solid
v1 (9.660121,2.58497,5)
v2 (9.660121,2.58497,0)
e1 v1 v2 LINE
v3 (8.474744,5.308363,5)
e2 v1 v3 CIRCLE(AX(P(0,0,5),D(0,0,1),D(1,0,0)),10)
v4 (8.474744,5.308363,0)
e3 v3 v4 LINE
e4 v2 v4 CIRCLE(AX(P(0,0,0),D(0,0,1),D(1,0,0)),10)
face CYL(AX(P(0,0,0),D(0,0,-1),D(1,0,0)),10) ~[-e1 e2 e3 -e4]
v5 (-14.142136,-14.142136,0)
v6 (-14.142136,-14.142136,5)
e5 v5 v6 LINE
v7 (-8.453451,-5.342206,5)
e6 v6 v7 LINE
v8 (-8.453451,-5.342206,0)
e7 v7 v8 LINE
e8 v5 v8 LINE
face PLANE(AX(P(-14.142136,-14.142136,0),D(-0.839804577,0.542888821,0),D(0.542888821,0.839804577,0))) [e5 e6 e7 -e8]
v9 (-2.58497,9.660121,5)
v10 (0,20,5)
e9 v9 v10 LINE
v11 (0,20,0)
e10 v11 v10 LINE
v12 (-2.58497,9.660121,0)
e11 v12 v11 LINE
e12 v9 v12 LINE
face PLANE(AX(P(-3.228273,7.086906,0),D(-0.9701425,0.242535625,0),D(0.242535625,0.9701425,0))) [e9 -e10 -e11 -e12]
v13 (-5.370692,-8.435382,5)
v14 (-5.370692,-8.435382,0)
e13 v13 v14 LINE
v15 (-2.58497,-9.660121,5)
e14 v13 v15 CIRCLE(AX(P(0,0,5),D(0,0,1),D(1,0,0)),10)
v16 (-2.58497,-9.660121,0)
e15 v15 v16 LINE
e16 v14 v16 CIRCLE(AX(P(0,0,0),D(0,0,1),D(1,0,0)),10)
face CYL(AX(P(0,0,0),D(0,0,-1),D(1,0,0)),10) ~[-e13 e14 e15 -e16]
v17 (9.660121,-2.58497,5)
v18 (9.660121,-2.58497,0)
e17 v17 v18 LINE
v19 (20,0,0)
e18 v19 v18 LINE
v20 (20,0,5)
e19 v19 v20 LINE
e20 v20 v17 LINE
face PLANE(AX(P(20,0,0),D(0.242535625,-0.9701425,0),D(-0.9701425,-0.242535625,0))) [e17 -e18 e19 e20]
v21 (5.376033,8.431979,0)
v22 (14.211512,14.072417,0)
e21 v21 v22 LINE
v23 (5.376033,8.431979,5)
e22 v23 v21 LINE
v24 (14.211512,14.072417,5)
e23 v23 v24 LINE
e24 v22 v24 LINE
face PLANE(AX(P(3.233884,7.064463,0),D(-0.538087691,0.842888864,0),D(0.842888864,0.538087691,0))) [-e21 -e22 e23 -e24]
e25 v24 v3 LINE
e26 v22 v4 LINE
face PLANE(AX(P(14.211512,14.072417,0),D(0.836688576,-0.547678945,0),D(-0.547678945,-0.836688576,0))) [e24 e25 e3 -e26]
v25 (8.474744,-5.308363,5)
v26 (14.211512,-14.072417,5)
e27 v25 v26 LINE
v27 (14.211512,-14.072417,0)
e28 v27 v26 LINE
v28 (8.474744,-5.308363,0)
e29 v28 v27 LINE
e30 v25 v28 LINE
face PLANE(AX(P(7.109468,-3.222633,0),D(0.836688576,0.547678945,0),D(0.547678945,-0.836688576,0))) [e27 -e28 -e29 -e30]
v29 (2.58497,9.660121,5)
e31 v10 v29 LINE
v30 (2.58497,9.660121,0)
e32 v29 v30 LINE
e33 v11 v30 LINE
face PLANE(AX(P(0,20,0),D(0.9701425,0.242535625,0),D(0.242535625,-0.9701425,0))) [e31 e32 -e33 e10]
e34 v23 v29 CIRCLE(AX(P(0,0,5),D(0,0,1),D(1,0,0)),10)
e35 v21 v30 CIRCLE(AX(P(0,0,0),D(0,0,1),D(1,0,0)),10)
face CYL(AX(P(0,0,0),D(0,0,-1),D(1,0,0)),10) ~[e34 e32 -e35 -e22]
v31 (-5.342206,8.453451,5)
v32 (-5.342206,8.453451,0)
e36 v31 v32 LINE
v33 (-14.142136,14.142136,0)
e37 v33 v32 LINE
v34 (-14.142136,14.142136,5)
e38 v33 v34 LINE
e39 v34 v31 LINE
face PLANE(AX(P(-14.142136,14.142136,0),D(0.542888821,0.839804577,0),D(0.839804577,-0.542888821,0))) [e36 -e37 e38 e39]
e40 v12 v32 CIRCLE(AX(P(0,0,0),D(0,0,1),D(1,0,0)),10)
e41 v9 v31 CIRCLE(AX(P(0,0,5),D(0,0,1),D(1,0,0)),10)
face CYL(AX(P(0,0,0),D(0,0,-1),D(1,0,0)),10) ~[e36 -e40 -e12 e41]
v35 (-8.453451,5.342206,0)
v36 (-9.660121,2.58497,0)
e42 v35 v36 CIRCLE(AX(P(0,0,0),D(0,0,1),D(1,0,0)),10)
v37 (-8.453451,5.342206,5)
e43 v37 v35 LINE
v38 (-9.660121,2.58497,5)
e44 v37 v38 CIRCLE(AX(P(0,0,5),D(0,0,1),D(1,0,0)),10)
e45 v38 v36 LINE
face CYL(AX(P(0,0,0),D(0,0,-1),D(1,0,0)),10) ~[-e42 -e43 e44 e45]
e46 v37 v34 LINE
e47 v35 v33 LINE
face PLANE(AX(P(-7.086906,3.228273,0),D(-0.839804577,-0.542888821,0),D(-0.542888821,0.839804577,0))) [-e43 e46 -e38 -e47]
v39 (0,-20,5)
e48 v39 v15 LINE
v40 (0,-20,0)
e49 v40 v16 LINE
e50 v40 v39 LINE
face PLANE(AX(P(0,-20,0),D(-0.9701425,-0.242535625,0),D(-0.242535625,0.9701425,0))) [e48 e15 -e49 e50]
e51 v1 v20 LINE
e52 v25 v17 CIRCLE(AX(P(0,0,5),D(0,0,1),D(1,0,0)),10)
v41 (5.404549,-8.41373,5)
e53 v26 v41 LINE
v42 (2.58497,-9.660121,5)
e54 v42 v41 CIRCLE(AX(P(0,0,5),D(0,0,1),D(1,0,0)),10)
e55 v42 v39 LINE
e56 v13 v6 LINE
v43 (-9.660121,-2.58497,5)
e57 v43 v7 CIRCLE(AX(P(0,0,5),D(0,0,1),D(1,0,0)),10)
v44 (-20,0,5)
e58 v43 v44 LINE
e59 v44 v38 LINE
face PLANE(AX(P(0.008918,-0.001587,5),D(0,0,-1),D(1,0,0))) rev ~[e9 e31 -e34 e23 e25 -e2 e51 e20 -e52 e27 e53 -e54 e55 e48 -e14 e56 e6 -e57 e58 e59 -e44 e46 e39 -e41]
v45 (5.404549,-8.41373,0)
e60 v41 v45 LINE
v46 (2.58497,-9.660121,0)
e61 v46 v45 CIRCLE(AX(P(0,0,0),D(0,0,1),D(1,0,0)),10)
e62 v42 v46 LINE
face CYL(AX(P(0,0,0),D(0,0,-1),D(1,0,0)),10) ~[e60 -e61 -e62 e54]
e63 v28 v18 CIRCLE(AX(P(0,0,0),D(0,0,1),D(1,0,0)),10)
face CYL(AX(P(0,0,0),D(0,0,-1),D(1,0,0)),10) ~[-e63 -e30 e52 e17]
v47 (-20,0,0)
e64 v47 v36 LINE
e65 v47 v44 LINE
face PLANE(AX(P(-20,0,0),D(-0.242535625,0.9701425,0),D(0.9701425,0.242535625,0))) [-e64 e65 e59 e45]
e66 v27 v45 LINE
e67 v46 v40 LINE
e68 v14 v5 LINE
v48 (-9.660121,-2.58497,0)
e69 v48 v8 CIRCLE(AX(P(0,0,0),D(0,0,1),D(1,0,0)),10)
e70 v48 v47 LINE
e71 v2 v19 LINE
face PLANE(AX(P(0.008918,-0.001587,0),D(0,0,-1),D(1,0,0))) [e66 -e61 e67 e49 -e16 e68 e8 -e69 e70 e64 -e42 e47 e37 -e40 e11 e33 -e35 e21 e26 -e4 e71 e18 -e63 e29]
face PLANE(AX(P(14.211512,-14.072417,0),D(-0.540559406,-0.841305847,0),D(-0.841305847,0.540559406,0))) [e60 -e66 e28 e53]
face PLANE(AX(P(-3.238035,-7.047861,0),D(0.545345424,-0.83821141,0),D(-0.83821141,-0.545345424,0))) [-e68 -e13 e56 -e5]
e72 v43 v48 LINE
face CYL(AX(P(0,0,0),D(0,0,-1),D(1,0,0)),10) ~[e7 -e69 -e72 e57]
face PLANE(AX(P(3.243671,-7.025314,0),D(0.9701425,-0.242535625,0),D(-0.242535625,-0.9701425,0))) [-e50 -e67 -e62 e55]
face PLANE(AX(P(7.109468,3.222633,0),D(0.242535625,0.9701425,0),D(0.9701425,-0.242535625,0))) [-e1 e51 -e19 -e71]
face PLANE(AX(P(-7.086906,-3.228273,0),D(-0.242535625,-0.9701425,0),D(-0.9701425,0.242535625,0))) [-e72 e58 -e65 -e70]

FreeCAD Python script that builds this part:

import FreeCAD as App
import Part
import Sketcher
from FreeCAD import Vector


def add_polygon(sketch, points):
    """Adds a closed chain of lines whose ends are joined by coincident constraints."""
    first, n = sketch.GeometryCount, len(points)
    for a, b in zip(points, points[1:] + points[:1]):
        sketch.addGeometry(Part.LineSegment(App.Vector(*a, 0), App.Vector(*b, 0)), False)
    for i in range(n):
        sketch.addConstraint(Sketcher.Constraint("Coincident", first + i, 2, first + (i + 1) % n, 1))

doc = App.newDocument("Part")
body = doc.addObject("PartDesign::Body", "Body")

# Sketch on XY plane
sketch1 = body.newObject("Sketcher::SketchObject", "Sketch")
sketch1.AttachmentSupport = (doc.getObject("XY_Plane"), [""])
sketch1.MapMode = "FlatFace"
sketch1.addGeometry(Part.Circle(Vector(0, 0, 0), Vector(0, 0, 1), 10), False)
sketch1.addConstraint([
    Sketcher.Constraint("Coincident", 0, 3, -1, 1),
    Sketcher.Constraint("Diameter", 0, 20.0),
])
pad1 = body.newObject("PartDesign::Pad", "Pad")
pad1.Profile = sketch1
pad1.Length = 5

# Sketch on XY plane
sketch2 = body.newObject("Sketcher::SketchObject", "Sketch001")
sketch2.AttachmentSupport = (doc.getObject("XY_Plane"), [""])
sketch2.MapMode = "FlatFace"
sketch2.AttachmentOffset = App.Placement(Vector(0, 0, 5), App.Rotation())
sketch2.addGeometry(Part.Circle(Vector(0, 0, 0), Vector(0, 0, 1), 0.835), False)
sketch2.addConstraint([
    Sketcher.Constraint("Coincident", 0, 3, -1, 1),
    Sketcher.Constraint("Diameter", 0, 1.67),
])
pocket1 = body.newObject("PartDesign::Pocket", "Pocket")
pocket1.Profile = sketch2
pocket1.Type = "ThroughAll"
pocket1.TaperAngle = 3

# Sketch on XY plane
sketch3 = body.newObject("Sketcher::SketchObject", "Sketch002")
sketch3.AttachmentSupport = (doc.getObject("XY_Plane"), [""])
sketch3.MapMode = "FlatFace"
add_polygon(sketch3, [(0, -20), (-3.238035, -7.047861), (-14.142136, -14.142136), (-7.086906, -3.228273), (-20, 0), (-7.086906, 3.228273), (-14.142136, 14.142136), (-3.228273, 7.086906), (0, 20), (3.233884, 7.064463), (14.211512, 14.072417), (7.109468, 3.222633), (20, 0), (7.109468, -3.222633), (14.211512, -14.072417), (3.243671, -7.025314)])  # lines 0-15
sketch3.addConstraint([
    Sketcher.Constraint("Symmetric", 3, 2, 11, 2, -1, 1),
    Sketcher.Constraint("Symmetric", 7, 2, 15, 2, -1, 1),
    Sketcher.Constraint("Symmetric", 2, 2, 4, 2, -1),
    Sketcher.Constraint("Symmetric", 1, 2, 5, 2, -1),
    Sketcher.Constraint("Symmetric", 10, 2, 12, 2, -1),
    Sketcher.Constraint("Symmetric", 9, 2, 13, 2, -1),
    Sketcher.Constraint("PointOnObject", 3, 2, -1),
    Sketcher.Constraint("PointOnObject", 7, 2, -2),
    Sketcher.Constraint("Perpendicular", 0, 4),
    Sketcher.Constraint("Perpendicular", 2, 6),
    Sketcher.Constraint("Perpendicular", 3, 7),
    Sketcher.Constraint("Perpendicular", 4, 8),
    Sketcher.Constraint("Perpendicular", 7, 11),
    Sketcher.Constraint("Perpendicular", 11, 15),
    Sketcher.Constraint("Equal", 5, 6),
    Sketcher.Constraint("Equal", 4, 7),
    Sketcher.Constraint("DistanceX", 3, 2, -1, 1, 20.0),
    Sketcher.Constraint("Distance", 15, 13.374),
    Sketcher.Constraint("DistanceX", 1, 2, 0, 2, 10.904101),
    Sketcher.Constraint("Distance", 0, 13.350759),
    Sketcher.Constraint("Distance", 1, 13.008772),
    Sketcher.Constraint("Distance", 10, 12.96753),
    Sketcher.Constraint("DistanceX", -1, 1, 9, 2, 14.211512),
    Sketcher.Constraint("DistanceX", -1, 1, 10, 2, 7.109468),
    Sketcher.Constraint("DistanceX", 2, 2, 0, 2, 3.848872),
    Sketcher.Constraint("DistanceX", 4, 2, 8, 2, 10.320791),
])
pad2 = body.newObject("PartDesign::Pad", "Pad001")
pad2.Profile = sketch3
pad2.Length = 5

doc.recompute()
